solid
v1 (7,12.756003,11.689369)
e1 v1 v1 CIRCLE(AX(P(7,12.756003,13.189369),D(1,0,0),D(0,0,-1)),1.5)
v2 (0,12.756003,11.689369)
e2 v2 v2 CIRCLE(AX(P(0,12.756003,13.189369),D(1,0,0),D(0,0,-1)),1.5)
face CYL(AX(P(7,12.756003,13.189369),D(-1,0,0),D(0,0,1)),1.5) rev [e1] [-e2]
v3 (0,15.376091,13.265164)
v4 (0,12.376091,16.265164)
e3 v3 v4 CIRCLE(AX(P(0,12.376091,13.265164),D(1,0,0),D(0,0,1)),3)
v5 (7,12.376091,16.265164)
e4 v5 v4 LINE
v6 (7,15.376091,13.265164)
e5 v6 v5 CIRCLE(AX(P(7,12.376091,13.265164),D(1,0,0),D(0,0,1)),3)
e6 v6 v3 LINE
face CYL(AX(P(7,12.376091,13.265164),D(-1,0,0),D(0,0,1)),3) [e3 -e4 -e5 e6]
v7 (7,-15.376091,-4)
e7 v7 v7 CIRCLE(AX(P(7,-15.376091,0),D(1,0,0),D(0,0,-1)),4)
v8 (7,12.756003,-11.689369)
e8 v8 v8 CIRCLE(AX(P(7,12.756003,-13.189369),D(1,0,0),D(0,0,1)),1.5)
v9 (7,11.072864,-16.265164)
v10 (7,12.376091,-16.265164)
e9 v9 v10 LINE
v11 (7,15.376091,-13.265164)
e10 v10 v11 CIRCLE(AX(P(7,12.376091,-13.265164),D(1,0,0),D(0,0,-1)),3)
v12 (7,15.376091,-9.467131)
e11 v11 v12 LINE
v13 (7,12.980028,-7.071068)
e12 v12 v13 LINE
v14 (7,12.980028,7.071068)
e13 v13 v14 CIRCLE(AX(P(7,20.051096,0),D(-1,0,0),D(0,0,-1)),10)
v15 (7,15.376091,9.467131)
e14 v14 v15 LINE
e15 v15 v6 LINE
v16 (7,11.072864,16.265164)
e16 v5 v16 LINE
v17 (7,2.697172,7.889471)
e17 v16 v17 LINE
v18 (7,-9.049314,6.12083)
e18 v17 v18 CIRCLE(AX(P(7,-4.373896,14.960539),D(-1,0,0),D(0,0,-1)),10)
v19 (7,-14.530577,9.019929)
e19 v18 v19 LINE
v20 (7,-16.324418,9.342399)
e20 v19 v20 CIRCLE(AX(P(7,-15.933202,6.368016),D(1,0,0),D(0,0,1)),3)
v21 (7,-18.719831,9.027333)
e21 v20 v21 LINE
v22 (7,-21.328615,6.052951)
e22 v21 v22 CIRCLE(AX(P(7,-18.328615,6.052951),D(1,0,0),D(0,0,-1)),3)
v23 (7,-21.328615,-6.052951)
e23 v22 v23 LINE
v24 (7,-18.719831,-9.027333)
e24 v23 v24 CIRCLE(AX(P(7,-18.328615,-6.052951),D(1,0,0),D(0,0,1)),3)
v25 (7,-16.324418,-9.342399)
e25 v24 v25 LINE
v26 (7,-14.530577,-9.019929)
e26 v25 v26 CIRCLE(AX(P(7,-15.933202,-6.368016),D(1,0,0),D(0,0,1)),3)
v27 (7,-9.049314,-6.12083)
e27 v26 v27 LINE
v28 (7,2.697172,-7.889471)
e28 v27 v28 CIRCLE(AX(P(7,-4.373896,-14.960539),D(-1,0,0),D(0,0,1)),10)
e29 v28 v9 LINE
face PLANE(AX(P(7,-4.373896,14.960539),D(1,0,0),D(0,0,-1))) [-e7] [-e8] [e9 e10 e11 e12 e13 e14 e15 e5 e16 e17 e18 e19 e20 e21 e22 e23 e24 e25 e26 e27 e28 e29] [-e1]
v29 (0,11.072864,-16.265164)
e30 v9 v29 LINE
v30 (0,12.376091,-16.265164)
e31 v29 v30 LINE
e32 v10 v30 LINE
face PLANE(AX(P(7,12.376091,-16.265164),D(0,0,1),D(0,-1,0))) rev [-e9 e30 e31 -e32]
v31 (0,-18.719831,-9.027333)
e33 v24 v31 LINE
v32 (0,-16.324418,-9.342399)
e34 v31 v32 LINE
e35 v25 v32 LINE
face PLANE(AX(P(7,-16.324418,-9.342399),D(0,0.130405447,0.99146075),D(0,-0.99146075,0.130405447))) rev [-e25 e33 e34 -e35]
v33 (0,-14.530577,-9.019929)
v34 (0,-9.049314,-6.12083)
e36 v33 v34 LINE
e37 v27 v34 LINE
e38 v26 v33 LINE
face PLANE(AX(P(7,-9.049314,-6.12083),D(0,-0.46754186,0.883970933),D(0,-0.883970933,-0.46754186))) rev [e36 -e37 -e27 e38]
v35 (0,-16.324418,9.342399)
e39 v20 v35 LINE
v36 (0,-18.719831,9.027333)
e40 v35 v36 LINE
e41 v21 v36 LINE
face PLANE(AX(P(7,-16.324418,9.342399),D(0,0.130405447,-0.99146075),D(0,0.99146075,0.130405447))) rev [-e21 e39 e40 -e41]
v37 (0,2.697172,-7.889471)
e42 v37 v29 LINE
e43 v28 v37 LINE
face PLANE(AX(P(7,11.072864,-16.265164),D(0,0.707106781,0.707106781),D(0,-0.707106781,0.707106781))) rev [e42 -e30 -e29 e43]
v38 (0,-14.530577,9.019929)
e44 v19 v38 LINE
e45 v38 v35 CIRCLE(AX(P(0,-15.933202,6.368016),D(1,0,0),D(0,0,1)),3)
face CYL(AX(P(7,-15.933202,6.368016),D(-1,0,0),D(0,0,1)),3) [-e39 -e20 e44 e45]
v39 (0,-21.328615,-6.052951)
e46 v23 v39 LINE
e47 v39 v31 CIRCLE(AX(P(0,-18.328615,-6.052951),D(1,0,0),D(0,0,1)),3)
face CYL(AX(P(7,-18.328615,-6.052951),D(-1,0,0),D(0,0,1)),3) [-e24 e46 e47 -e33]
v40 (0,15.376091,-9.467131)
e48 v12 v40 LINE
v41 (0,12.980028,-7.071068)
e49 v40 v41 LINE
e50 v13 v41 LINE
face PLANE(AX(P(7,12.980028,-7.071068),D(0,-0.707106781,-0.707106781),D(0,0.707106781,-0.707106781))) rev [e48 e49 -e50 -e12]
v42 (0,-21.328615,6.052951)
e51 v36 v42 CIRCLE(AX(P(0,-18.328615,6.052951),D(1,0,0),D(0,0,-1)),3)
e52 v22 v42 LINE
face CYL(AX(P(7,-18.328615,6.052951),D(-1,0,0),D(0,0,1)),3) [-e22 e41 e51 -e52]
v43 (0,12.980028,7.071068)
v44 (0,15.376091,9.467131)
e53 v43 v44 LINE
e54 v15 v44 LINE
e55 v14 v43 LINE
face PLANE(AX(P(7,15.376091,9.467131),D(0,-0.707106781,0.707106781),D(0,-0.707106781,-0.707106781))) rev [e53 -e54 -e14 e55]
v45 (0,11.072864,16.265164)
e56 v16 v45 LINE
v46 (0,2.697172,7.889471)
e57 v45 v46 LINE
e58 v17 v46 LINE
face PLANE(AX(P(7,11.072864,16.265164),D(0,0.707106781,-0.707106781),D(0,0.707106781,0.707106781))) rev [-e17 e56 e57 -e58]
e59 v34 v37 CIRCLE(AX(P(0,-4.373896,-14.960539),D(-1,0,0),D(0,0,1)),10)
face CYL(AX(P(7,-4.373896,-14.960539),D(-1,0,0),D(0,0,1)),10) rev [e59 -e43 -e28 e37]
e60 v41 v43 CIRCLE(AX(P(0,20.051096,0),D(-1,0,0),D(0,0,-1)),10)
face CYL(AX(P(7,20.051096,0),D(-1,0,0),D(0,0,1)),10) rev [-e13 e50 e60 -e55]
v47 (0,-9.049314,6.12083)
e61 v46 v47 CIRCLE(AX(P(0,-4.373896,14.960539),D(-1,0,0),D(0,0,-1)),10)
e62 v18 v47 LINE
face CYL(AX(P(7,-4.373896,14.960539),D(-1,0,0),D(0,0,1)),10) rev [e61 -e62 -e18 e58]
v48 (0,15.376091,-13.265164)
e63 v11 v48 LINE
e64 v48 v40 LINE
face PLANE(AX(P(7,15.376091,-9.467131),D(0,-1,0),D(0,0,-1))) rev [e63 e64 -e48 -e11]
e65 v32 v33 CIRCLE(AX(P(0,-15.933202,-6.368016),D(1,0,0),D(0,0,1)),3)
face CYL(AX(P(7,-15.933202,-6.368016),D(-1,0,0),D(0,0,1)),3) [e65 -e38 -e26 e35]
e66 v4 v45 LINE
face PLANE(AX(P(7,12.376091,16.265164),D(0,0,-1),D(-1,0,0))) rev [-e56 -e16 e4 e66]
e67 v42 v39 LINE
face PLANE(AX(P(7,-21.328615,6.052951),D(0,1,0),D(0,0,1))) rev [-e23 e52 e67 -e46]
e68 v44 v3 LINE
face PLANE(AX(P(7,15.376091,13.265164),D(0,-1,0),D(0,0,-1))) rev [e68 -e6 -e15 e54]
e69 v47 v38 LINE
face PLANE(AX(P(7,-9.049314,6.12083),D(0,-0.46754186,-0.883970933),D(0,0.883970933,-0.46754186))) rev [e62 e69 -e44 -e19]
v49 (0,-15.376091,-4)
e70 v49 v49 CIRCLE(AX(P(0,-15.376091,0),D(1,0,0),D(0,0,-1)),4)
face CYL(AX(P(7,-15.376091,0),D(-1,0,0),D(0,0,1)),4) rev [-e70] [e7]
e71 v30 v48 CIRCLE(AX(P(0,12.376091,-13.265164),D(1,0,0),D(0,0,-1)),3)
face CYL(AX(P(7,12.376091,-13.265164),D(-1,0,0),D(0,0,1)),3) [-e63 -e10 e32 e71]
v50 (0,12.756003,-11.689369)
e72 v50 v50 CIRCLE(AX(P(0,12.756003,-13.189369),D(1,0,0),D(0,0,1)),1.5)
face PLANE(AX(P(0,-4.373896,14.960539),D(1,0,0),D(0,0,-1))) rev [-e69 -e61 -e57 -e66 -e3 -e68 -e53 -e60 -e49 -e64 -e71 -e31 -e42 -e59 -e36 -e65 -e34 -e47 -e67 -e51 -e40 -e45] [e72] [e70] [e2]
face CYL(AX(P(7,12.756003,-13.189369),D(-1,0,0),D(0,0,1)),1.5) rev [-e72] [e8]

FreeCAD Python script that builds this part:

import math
import FreeCAD as App
import Part
import Sketcher

doc = App.newDocument("Part")
body = doc.addObject("PartDesign::Body", "Body")

sketch1 = body.newObject("Sketcher::SketchObject", "Sketch")
sketch1.AttachmentSupport = (doc.getObject("YZ_Plane"), [""])
sketch1.MapMode = "FlatFace"
sketch1.addGeometry([
    Part.LineSegment(App.Vector(11.072864, 16.265164, 0), App.Vector(2.697172, 7.889471, 0)),
    Part.ArcOfCircle(Part.Circle(App.Vector(-4.373896, 14.960539, 0), App.Vector(0, 0, 1), 10), math.radians(-117.874851), math.radians(-45)),
    Part.LineSegment(App.Vector(-9.049314, 6.12083, 0), App.Vector(-14.530577, 9.019929, 0)),
    Part.ArcOfCircle(Part.Circle(App.Vector(-15.933202, 6.368016, 0), App.Vector(0, 0, 1), 3), math.radians(62.125149), math.radians(97.493022)),
    Part.LineSegment(App.Vector(-16.324418, 9.342399, 0), App.Vector(-18.719831, 9.027333, 0)),
    Part.ArcOfCircle(Part.Circle(App.Vector(-18.328615, 6.052951, 0), App.Vector(0, 0, 1), 3), math.radians(97.493022), math.radians(180)),
    Part.LineSegment(App.Vector(-21.328615, 6.052951, 0), App.Vector(-21.328615, -6.052951, 0)),
    Part.ArcOfCircle(Part.Circle(App.Vector(-18.328615, -6.052951, 0), App.Vector(0, 0, 1), 3), math.radians(180), math.radians(262.506978)),
    Part.LineSegment(App.Vector(-18.719831, -9.027333, 0), App.Vector(-16.324418, -9.342399, 0)),
    Part.ArcOfCircle(Part.Circle(App.Vector(-15.933202, -6.368016, 0), App.Vector(0, 0, 1), 3), math.radians(-97.493022), math.radians(-62.125149)),
    Part.LineSegment(App.Vector(-14.530577, -9.019929, 0), App.Vector(-9.049314, -6.12083, 0)),
    Part.ArcOfCircle(Part.Circle(App.Vector(-4.373896, -14.960539, 0), App.Vector(0, 0, 1), 10), math.radians(45), math.radians(117.874851)),
    Part.LineSegment(App.Vector(2.697172, -7.889471, 0), App.Vector(11.072864, -16.265164, 0)),
    Part.LineSegment(App.Vector(11.072864, -16.265164, 0), App.Vector(12.376091, -16.265164, 0)),
    Part.ArcOfCircle(Part.Circle(App.Vector(12.376091, -13.265164, 0), App.Vector(0, 0, 1), 3), math.radians(-90), math.radians(0)),
    Part.LineSegment(App.Vector(15.376091, -13.265164, 0), App.Vector(15.376091, -9.467131, 0)),
    Part.LineSegment(App.Vector(15.376091, -9.467131, 0), App.Vector(12.980028, -7.071068, 0)),
    Part.ArcOfCircle(Part.Circle(App.Vector(20.051096, 0, 0), App.Vector(0, 0, 1), 10), math.radians(135), math.radians(225)),
    Part.LineSegment(App.Vector(12.980028, 7.071068, 0), App.Vector(15.376091, 9.467131, 0)),
    Part.LineSegment(App.Vector(15.376091, 9.467131, 0), App.Vector(15.376091, 13.265164, 0)),
    Part.ArcOfCircle(Part.Circle(App.Vector(12.376091, 13.265164, 0), App.Vector(0, 0, 1), 3), math.radians(0), math.radians(90)),
    Part.LineSegment(App.Vector(12.376091, 16.265164, 0), App.Vector(11.072864, 16.265164, 0)),
    Part.Circle(App.Vector(-15.376091, 0, 0), App.Vector(0, 0, 1), 4),
    Part.Circle(App.Vector(12.756003, 13.189369, 0), App.Vector(0, 0, 1), 1.5),
    Part.Circle(App.Vector(12.756003, -13.189369, 0), App.Vector(0, 0, 1), 1.5),
], False)
sketch1.addConstraint([
    Sketcher.Constraint("Tangent", 0, 2, 1, 2),
    Sketcher.Constraint("Tangent", 1, 1, 2, 1),
    Sketcher.Constraint("Tangent", 2, 2, 3, 1),
    Sketcher.Constraint("Tangent", 3, 2, 4, 1),
    Sketcher.Constraint("Tangent", 4, 2, 5, 1),
    Sketcher.Constraint("Tangent", 5, 2, 6, 1),
    Sketcher.Constraint("Tangent", 6, 2, 7, 1),
    Sketcher.Constraint("Tangent", 7, 2, 8, 1),
    Sketcher.Constraint("Tangent", 8, 2, 9, 1),
    Sketcher.Constraint("Tangent", 9, 2, 10, 1),
    Sketcher.Constraint("Tangent", 10, 2, 11, 2),
    Sketcher.Constraint("Tangent", 11, 1, 12, 1),
    Sketcher.Constraint("Coincident", 12, 2, 13, 1),
    Sketcher.Constraint("Tangent", 13, 2, 14, 1),
    Sketcher.Constraint("Tangent", 14, 2, 15, 1),
    Sketcher.Constraint("Coincident", 15, 2, 16, 1),
    Sketcher.Constraint("Tangent", 16, 2, 17, 2),
    Sketcher.Constraint("Tangent", 17, 1, 18, 1),
    Sketcher.Constraint("Coincident", 18, 2, 19, 1),
    Sketcher.Constraint("Tangent", 19, 2, 20, 1),
    Sketcher.Constraint("Tangent", 20, 2, 21, 1),
    Sketcher.Constraint("Coincident", 21, 2, 0, 1),
    Sketcher.Constraint("Vertical", 6),
    Sketcher.Constraint("Horizontal", 13),
    Sketcher.Constraint("Vertical", 15),
    Sketcher.Constraint("Vertical", 19),
    Sketcher.Constraint("Horizontal", 21),
    Sketcher.Constraint("Equal", 3, 5),
    Sketcher.Constraint("Equal", 5, 7),
    Sketcher.Constraint("Equal", 7, 9),
    Sketcher.Constraint("Equal", 1, 11),
    Sketcher.Constraint("Equal", 9, 14),
    Sketcher.Constraint("Equal", 11, 17),
    Sketcher.Constraint("Equal", 14, 20),
    Sketcher.Constraint("Equal", 23, 24),
    Sketcher.Constraint("Symmetric", 3, 3, 9, 3, -1),
    Sketcher.Constraint("Symmetric", 1, 3, 11, 3, -1),
    Sketcher.Constraint("Symmetric", 14, 3, 20, 3, -1),
    Sketcher.Constraint("Symmetric", 23, 3, 24, 3, -1),
    Sketcher.Constraint("Symmetric", 16, 2, 17, 1, -1),
    Sketcher.Constraint("PointOnObject", 22, 3, -1),
    Sketcher.Constraint("Perpendicular", 0, 12),
    Sketcher.Constraint("Parallel", 12, 16),
    Sketcher.Constraint("Perpendicular", 16, 18),
    Sketcher.Constraint("Vertical", 4, 2, 7, 2),
    Sketcher.Constraint("Diameter", 22, 8.0),
    Sketcher.Constraint("Diameter", 23, 3.0),
    Sketcher.Constraint("Radius", 1, 10.0),
    Sketcher.Constraint("Radius", 3, 3.0),
    Sketcher.Constraint("DistanceY", -1, 1, 3, 2, 9.342399),
    Sketcher.Constraint("DistanceX", 1, 3, 23, 3, 17.129899),
    Sketcher.Constraint("DistanceX", 5, 3, 1, 1, 9.279301),
    Sketcher.Constraint("DistanceY", 1, 1, 2, 2, 2.899099),
    Sketcher.Constraint("DistanceY", 24, 3, 16, 2, 6.118301),
    Sketcher.Constraint("DistanceX", 13, 1, 13, 2, 1.303226),
    Sketcher.Constraint("DistanceY", 6, 2, 6, 1, 12.105902),
    Sketcher.Constraint("DistanceY", 15, 1, 15, 2, 3.798033),
    Sketcher.Constraint("DistanceY", -1, 1, 1, 3, 14.960539),
    Sketcher.Constraint("DistanceX", -1, 1, 14, 3, 12.376091),
    Sketcher.Constraint("DistanceX", 22, 3, -1, 1, 15.376091),
    Sketcher.Constraint("DistanceX", -1, 1, 0, 2, 2.697172),
])
pad1 = body.newObject("PartDesign::Pad", "Pad")
pad1.Profile = sketch1
pad1.Length = 7

doc.recompute()
